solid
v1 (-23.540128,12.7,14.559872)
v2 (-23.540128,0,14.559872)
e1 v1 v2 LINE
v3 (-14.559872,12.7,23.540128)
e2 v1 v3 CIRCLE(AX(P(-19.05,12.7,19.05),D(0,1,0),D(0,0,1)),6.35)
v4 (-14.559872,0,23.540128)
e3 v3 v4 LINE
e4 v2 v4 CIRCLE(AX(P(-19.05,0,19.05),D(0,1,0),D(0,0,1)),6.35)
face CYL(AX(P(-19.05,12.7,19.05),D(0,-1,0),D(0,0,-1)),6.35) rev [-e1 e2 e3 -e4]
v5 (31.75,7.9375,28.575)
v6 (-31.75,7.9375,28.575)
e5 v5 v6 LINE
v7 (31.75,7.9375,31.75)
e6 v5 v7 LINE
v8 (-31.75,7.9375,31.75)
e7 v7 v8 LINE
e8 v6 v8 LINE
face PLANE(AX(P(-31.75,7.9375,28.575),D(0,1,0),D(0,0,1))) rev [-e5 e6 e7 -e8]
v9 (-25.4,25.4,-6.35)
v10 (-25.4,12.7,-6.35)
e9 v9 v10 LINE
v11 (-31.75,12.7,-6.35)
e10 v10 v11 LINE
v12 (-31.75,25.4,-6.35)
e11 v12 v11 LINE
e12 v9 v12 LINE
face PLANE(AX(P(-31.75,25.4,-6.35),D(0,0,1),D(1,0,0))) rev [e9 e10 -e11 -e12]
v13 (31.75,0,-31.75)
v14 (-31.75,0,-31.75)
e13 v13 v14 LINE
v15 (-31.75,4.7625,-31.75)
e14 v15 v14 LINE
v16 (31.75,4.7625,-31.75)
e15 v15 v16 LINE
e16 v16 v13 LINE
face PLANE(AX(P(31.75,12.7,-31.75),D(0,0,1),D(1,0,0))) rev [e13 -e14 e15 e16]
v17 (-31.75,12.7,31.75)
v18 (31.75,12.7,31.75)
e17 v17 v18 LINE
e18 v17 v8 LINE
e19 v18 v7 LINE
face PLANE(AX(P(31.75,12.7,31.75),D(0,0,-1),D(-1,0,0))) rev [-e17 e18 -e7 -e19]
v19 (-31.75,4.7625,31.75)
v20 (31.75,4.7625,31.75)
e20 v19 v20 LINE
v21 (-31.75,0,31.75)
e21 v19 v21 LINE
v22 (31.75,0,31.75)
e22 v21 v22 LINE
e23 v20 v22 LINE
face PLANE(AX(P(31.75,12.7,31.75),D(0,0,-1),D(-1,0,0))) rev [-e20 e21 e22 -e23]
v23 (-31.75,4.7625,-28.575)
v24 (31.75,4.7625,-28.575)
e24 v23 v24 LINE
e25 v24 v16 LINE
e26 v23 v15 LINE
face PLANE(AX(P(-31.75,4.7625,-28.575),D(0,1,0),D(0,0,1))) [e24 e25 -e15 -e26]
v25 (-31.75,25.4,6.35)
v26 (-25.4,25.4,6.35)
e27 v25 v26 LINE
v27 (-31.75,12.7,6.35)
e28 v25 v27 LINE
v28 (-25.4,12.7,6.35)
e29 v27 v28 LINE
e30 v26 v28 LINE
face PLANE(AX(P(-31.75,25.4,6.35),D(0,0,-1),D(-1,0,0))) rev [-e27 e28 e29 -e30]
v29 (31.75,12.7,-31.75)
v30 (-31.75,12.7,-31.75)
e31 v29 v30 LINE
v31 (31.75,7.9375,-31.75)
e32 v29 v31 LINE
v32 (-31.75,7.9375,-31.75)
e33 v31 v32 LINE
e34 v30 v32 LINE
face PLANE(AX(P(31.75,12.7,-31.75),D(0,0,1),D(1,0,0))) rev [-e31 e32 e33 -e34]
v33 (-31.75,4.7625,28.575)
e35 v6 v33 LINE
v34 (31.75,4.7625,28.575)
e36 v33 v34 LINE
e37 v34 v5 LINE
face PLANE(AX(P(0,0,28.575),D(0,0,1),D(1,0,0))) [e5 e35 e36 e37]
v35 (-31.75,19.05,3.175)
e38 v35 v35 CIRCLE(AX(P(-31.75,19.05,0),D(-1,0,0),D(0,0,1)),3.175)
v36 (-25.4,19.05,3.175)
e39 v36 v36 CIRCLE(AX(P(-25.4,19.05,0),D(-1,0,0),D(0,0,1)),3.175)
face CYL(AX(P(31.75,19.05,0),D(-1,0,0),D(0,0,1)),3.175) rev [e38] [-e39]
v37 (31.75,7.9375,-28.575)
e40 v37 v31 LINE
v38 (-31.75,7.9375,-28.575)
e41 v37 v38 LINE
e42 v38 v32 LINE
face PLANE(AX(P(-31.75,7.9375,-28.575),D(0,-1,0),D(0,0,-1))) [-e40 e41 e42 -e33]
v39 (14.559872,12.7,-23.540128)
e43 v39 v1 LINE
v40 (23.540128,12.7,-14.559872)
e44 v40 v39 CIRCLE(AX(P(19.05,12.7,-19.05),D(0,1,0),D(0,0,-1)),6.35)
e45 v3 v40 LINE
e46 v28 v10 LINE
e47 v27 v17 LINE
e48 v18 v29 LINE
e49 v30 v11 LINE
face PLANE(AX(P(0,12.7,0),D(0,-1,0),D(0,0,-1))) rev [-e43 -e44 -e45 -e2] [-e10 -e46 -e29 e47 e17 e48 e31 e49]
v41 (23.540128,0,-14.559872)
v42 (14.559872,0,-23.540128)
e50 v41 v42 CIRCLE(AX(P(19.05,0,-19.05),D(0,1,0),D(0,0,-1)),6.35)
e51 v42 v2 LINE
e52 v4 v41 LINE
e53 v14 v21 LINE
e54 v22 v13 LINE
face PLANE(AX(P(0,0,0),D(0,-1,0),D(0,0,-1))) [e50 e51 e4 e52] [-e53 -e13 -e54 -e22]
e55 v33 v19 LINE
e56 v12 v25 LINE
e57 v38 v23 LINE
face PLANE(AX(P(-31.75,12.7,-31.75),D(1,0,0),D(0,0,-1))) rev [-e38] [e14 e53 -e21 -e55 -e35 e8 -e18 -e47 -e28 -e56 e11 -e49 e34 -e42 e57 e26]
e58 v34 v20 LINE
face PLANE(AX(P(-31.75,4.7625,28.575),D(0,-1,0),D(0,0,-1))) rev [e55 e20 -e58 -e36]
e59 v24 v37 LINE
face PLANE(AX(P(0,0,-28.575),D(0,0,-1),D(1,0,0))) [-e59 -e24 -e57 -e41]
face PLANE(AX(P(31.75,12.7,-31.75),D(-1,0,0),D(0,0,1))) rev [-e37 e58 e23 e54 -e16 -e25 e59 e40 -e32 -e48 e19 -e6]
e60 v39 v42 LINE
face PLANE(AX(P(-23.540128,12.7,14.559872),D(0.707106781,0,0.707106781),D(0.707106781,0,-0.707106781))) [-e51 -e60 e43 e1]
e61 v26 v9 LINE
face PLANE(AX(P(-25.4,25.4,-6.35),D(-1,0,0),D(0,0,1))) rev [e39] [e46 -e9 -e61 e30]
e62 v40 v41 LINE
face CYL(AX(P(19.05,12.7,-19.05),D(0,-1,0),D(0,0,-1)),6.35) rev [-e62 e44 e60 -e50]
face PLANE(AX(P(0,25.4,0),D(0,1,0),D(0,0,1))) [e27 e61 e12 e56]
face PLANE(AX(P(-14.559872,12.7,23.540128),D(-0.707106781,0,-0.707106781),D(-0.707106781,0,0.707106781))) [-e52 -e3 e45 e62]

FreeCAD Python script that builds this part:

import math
import FreeCAD as App
import Part
import Sketcher
from FreeCAD import Vector
Q = App.Units.Quantity


def add_polygon(sketch, points):
    """Adds a closed chain of lines whose ends are joined by coincident constraints."""
    first, n = sketch.GeometryCount, len(points)
    for a, b in zip(points, points[1:] + points[:1]):
        sketch.addGeometry(Part.LineSegment(App.Vector(*a, 0), App.Vector(*b, 0)), False)
    for i in range(n):
        sketch.addConstraint(Sketcher.Constraint("Coincident", first + i, 2, first + (i + 1) % n, 1))

doc = App.newDocument("Part")
body = doc.addObject("PartDesign::Body", "Body")

# Sketch on XZ plane
sketch1 = body.newObject("Sketcher::SketchObject", "Sketch")
sketch1.AttachmentSupport = (doc.getObject("XZ_Plane"), [""])
sketch1.MapMode = "FlatFace"
add_polygon(sketch1, [(-32, -32), (-32, 32), (32, 32), (32, -32)])  # lines 0-3
sketch1.addGeometry(Part.ArcOfCircle(Part.Circle(Vector(-19, 19, 0), Vector(0, 0, 1), 6), math.radians(45), math.radians(225)), False)  # 4
sketch1.addGeometry(Part.LineSegment(Vector(-24, 15, 0), Vector(15, -24, 0)), False)  # 5
sketch1.addGeometry(Part.ArcOfCircle(Part.Circle(Vector(19, -19, 0), Vector(0, 0, 1), 6), math.radians(-135), math.radians(45)), False)  # 6
sketch1.addGeometry(Part.LineSegment(Vector(24, -15, 0), Vector(-15, 24, 0)), False)  # 7
sketch1.addConstraint(Sketcher.Constraint("Tangent", 4, 2, 5, 1))
sketch1.addConstraint(Sketcher.Constraint("Tangent", 5, 2, 6, 1))
sketch1.addConstraint(Sketcher.Constraint("Tangent", 6, 2, 7, 1))
sketch1.addConstraint(Sketcher.Constraint("Tangent", 7, 2, 4, 1))
sketch1.addConstraint(Sketcher.Constraint("Vertical", 0))
sketch1.addConstraint(Sketcher.Constraint("Horizontal", 1))
sketch1.addConstraint(Sketcher.Constraint("Vertical", 2))
sketch1.addConstraint(Sketcher.Constraint("Horizontal", 3))
sketch1.addConstraint(Sketcher.Constraint("Equal", 4, 6))
sketch1.addConstraint(Sketcher.Constraint("Symmetric", 4, 3, 6, 3, -1, 1))
sketch1.addConstraint(Sketcher.Constraint("Symmetric", 0, 2, 2, 2, -1, 1))
sketch1.addConstraint(Sketcher.Constraint("Equal", 3, 0))
sketch1.addConstraint(Sketcher.Constraint("Radius", 4, Q("0.25 in")))
sketch1.addConstraint(Sketcher.Constraint("DistanceX", 1, 1, 1, 2, Q("2.5 in")))
sketch1.addConstraint(Sketcher.Constraint("Angle", 5, Q("-45 deg")))
sketch1.addConstraint(Sketcher.Constraint("DistanceX", 0, 2, 6, 3, Q("2 in")))
pad1 = body.newObject("PartDesign::Pad", "Pad")
pad1.Profile = sketch1
pad1.Length = Q("0.5 in")
pad1.Reversed = True

# Sketch on XY plane
sketch2 = body.newObject("Sketcher::SketchObject", "Sketch001")
sketch2.AttachmentSupport = (doc.getObject("XY_Plane"), [""])
sketch2.MapMode = "FlatFace"
sketch2.AttachmentOffset = App.Placement(Vector(0, 0, 1.25 * 25.4), App.Rotation())
add_polygon(sketch2, [(-31.8, 7.9), (-31.8, 4.8), (31.8, 4.8), (31.8, 7.9)])  # lines 0-3
sketch2.addConstraint(Sketcher.Constraint("Vertical", 0))
sketch2.addConstraint(Sketcher.Constraint("Horizontal", 1))
sketch2.addConstraint(Sketcher.Constraint("Vertical", 2))
sketch2.addConstraint(Sketcher.Constraint("Horizontal", 3))
sketch2.addConstraint(Sketcher.Constraint("DistanceX", 1, 1, 1, 2, Q("2.5 in")))
sketch2.addConstraint(Sketcher.Constraint("DistanceY", 0, 2, 0, 1, Q("0.125 in")))
sketch2.addConstraint(Sketcher.Constraint("DistanceX", 0, 2, -1, 1, Q("1.25 in")))
sketch2.addConstraint(Sketcher.Constraint("DistanceY", -1, 1, 0, 2, Q("0.1875 in")))
pocket1 = body.newObject("PartDesign::Pocket", "Pocket")
pocket1.Profile = sketch2
pocket1.Length = Q("0.125 in")
doc.recompute()

mirrored = body.newObject("PartDesign::Mirrored", "Mirrored")
mirrored.Originals = [pocket1]
mirrored.MirrorPlane = (doc.getObject("XY_Plane"), [""])
body.Tip = mirrored

# Sketch on XZ plane
sketch3 = body.newObject("Sketcher::SketchObject", "Sketch002")
sketch3.AttachmentSupport = (doc.getObject("XZ_Plane"), [""])
sketch3.MapMode = "FlatFace"
sketch3.AttachmentOffset = App.Placement(Vector(0, 0, -0.5 * 25.4), App.Rotation())
add_polygon(sketch3, [(-32, -6), (-32, 6), (-25, 6), (-25, -6)])  # lines 0-3
sketch3.addConstraint(Sketcher.Constraint("Vertical", 0))
sketch3.addConstraint(Sketcher.Constraint("Horizontal", 1))
sketch3.addConstraint(Sketcher.Constraint("Vertical", 2))
sketch3.addConstraint(Sketcher.Constraint("Horizontal", 3))
sketch3.addConstraint(Sketcher.Constraint("DistanceY", 0, 1, 0, 2, Q("0.5 in")))
sketch3.addConstraint(Sketcher.Constraint("DistanceX", 1, 2, -1, 1, Q("1 in")))
sketch3.addConstraint(Sketcher.Constraint("DistanceX", 1, 1, 1, 2, Q("0.25 in")))
sketch3.addConstraint(Sketcher.Constraint("DistanceY", -1, 1, 0, 2, Q("0.25 in")))
pad2 = body.newObject("PartDesign::Pad", "Pad001")
pad2.Profile = sketch3
pad2.Length = Q("0.5 in")
pad2.Reversed = True

# Sketch on YZ plane
sketch4 = body.newObject("Sketcher::SketchObject", "Sketch003")
sketch4.AttachmentSupport = (doc.getObject("YZ_Plane"), [""])
sketch4.MapMode = "FlatFace"
sketch4.AttachmentOffset = App.Placement(Vector(0, 0, -1.25 * 25.4), App.Rotation())
sketch4.addGeometry(Part.Circle(Vector(19.1, 0, 0), Vector(0, 0, 1), 3.2), False)
sketch4.addConstraint(Sketcher.Constraint("PointOnObject", 0, 3, -1))
sketch4.addConstraint(Sketcher.Constraint("Diameter", 0, Q("0.25 in")))
sketch4.addConstraint(Sketcher.Constraint("DistanceX", -1, 1, 0, 3, Q("0.75 in")))
pocket2 = body.newObject("PartDesign::Pocket", "Pocket001")
pocket2.Profile = sketch4
pocket2.Type = "ThroughAll"
pocket2.Reversed = True

doc.recompute()
